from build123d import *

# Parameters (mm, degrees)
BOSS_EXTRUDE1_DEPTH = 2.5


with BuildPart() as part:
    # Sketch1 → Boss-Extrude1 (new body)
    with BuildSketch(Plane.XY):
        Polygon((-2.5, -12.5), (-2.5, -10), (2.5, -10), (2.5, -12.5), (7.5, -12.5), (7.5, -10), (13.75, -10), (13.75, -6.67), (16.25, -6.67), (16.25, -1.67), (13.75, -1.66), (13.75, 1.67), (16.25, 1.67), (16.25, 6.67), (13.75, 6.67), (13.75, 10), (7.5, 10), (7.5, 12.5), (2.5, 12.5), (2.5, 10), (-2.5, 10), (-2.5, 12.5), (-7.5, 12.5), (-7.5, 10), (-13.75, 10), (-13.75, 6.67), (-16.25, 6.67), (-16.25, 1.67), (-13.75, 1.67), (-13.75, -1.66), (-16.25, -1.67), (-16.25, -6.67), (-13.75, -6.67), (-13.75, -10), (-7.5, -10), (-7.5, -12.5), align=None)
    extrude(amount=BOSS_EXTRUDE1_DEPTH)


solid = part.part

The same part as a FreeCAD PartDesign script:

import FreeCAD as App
import Part
import Sketcher
from FreeCAD import Vector
Q = App.Units.Quantity

doc = App.newDocument("Part")
body = doc.addObject("PartDesign::Body", "Body")

# Sketch on XY plane
sketch1 = doc.addObject("Sketcher::SketchObject", "Sketch")
body.addObject(sketch1)
sketch1.AttachmentSupport = (doc.XY_Plane, [""])
sketch1.MapMode = "FlatFace"
sketch1.addGeometry([
    Part.LineSegment(Vector(-2.5, -12.5, 0), Vector(-2.5, -10, 0)),  # 0
    Part.LineSegment(Vector(-2.5, -10, 0), Vector(2.5, -10, 0)),  # 1
    Part.LineSegment(Vector(2.5, -10, 0), Vector(2.5, -12.5, 0)),  # 2
    Part.LineSegment(Vector(2.5, -12.5, 0), Vector(7.5, -12.5, 0)),  # 3
    Part.LineSegment(Vector(7.5, -12.5, 0), Vector(7.5, -10, 0)),  # 4
    Part.LineSegment(Vector(7.5, -10, 0), Vector(13.8, -10, 0)),  # 5
    Part.LineSegment(Vector(13.8, -10, 0), Vector(13.8, -6.7, 0)),  # 6
    Part.LineSegment(Vector(13.8, -6.7, 0), Vector(16.2, -6.7, 0)),  # 7
    Part.LineSegment(Vector(16.2, -6.7, 0), Vector(16.2, -1.7, 0)),  # 8
    Part.LineSegment(Vector(16.2, -1.7, 0), Vector(13.8, -1.7, 0)),  # 9
    Part.LineSegment(Vector(13.8, -1.7, 0), Vector(13.8, 1.7, 0)),  # 10
    Part.LineSegment(Vector(13.8, 1.7, 0), Vector(16.2, 1.7, 0)),  # 11
    Part.LineSegment(Vector(16.2, 1.7, 0), Vector(16.2, 6.7, 0)),  # 12
    Part.LineSegment(Vector(16.2, 6.7, 0), Vector(13.8, 6.7, 0)),  # 13
    Part.LineSegment(Vector(13.8, 6.7, 0), Vector(13.8, 10, 0)),  # 14
    Part.LineSegment(Vector(13.8, 10, 0), Vector(7.5, 10, 0)),  # 15
    Part.LineSegment(Vector(7.5, 10, 0), Vector(7.5, 12.5, 0)),  # 16
    Part.LineSegment(Vector(7.5, 12.5, 0), Vector(2.5, 12.5, 0)),  # 17
    Part.LineSegment(Vector(2.5, 12.5, 0), Vector(2.5, 10, 0)),  # 18
    Part.LineSegment(Vector(2.5, 10, 0), Vector(-2.5, 10, 0)),  # 19
    Part.LineSegment(Vector(-2.5, 10, 0), Vector(-2.5, 12.5, 0)),  # 20
    Part.LineSegment(Vector(-2.5, 12.5, 0), Vector(-7.5, 12.5, 0)),  # 21
    Part.LineSegment(Vector(-7.5, 12.5, 0), Vector(-7.5, 10, 0)),  # 22
    Part.LineSegment(Vector(-7.5, 10, 0), Vector(-13.8, 10, 0)),  # 23
    Part.LineSegment(Vector(-13.8, 10, 0), Vector(-13.8, 6.7, 0)),  # 24
    Part.LineSegment(Vector(-13.8, 6.7, 0), Vector(-16.2, 6.7, 0)),  # 25
    Part.LineSegment(Vector(-16.2, 6.7, 0), Vector(-16.2, 1.7, 0)),  # 26
    Part.LineSegment(Vector(-16.2, 1.7, 0), Vector(-13.8, 1.7, 0)),  # 27
    Part.LineSegment(Vector(-13.8, 1.7, 0), Vector(-13.8, -1.7, 0)),  # 28
    Part.LineSegment(Vector(-13.8, -1.7, 0), Vector(-16.2, -1.7, 0)),  # 29
    Part.LineSegment(Vector(-16.2, -1.7, 0), Vector(-16.2, -6.7, 0)),  # 30
    Part.LineSegment(Vector(-16.2, -6.7, 0), Vector(-13.8, -6.7, 0)),  # 31
    Part.LineSegment(Vector(-13.8, -6.7, 0), Vector(-13.8, -10, 0)),  # 32
    Part.LineSegment(Vector(-13.8, -10, 0), Vector(-7.5, -10, 0)),  # 33
    Part.LineSegment(Vector(-7.5, -10, 0), Vector(-7.5, -12.5, 0)),  # 34
    Part.LineSegment(Vector(-7.5, -12.5, 0), Vector(-2.5, -12.5, 0)),  # 35
], False)
sketch1.addConstraint([
    Sketcher.Constraint("Coincident", 0, 2, 1, 1),
    Sketcher.Constraint("Coincident", 1, 2, 2, 1),
    Sketcher.Constraint("Coincident", 2, 2, 3, 1),
    Sketcher.Constraint("Coincident", 3, 2, 4, 1),
    Sketcher.Constraint("Coincident", 4, 2, 5, 1),
    Sketcher.Constraint("Coincident", 5, 2, 6, 1),
    Sketcher.Constraint("Coincident", 6, 2, 7, 1),
    Sketcher.Constraint("Coincident", 7, 2, 8, 1),
    Sketcher.Constraint("Coincident", 8, 2, 9, 1),
    Sketcher.Constraint("Coincident", 9, 2, 10, 1),
    Sketcher.Constraint("Coincident", 10, 2, 11, 1),
    Sketcher.Constraint("Coincident", 11, 2, 12, 1),
    Sketcher.Constraint("Coincident", 12, 2, 13, 1),
    Sketcher.Constraint("Coincident", 13, 2, 14, 1),
    Sketcher.Constraint("Coincident", 14, 2, 15, 1),
    Sketcher.Constraint("Coincident", 15, 2, 16, 1),
    Sketcher.Constraint("Coincident", 16, 2, 17, 1),
    Sketcher.Constraint("Coincident", 17, 2, 18, 1),
    Sketcher.Constraint("Coincident", 18, 2, 19, 1),
    Sketcher.Constraint("Coincident", 19, 2, 20, 1),
    Sketcher.Constraint("Coincident", 20, 2, 21, 1),
    Sketcher.Constraint("Coincident", 21, 2, 22, 1),
    Sketcher.Constraint("Coincident", 22, 2, 23, 1),
    Sketcher.Constraint("Coincident", 23, 2, 24, 1),
    Sketcher.Constraint("Coincident", 24, 2, 25, 1),
    Sketcher.Constraint("Coincident", 25, 2, 26, 1),
    Sketcher.Constraint("Coincident", 26, 2, 27, 1),
    Sketcher.Constraint("Coincident", 27, 2, 28, 1),
    Sketcher.Constraint("Coincident", 28, 2, 29, 1),
    Sketcher.Constraint("Coincident", 29, 2, 30, 1),
    Sketcher.Constraint("Coincident", 30, 2, 31, 1),
    Sketcher.Constraint("Coincident", 31, 2, 32, 1),
    Sketcher.Constraint("Coincident", 32, 2, 33, 1),
    Sketcher.Constraint("Coincident", 33, 2, 34, 1),
    Sketcher.Constraint("Coincident", 34, 2, 35, 1),
    Sketcher.Constraint("Coincident", 35, 2, 0, 1),
    Sketcher.Constraint("Vertical", 0),
    Sketcher.Constraint("Horizontal", 1),
    Sketcher.Constraint("Vertical", 2),
    Sketcher.Constraint("Horizontal", 3),
    Sketcher.Constraint("Vertical", 4),
    Sketcher.Constraint("Horizontal", 5),
    Sketcher.Constraint("Vertical", 6),
    Sketcher.Constraint("Horizontal", 7),
    Sketcher.Constraint("Vertical", 8),
    Sketcher.Constraint("Vertical", 10),
    Sketcher.Constraint("Horizontal", 11),
    Sketcher.Constraint("Vertical", 12),
    Sketcher.Constraint("Horizontal", 13),
    Sketcher.Constraint("Vertical", 14),
    Sketcher.Constraint("Horizontal", 15),
    Sketcher.Constraint("Vertical", 16),
    Sketcher.Constraint("Horizontal", 17),
    Sketcher.Constraint("Vertical", 18),
    Sketcher.Constraint("Horizontal", 19),
    Sketcher.Constraint("Vertical", 20),
    Sketcher.Constraint("Horizontal", 21),
    Sketcher.Constraint("Vertical", 22),
    Sketcher.Constraint("Horizontal", 23),
    Sketcher.Constraint("Vertical", 24),
    Sketcher.Constraint("Horizontal", 25),
    Sketcher.Constraint("Vertical", 26),
    Sketcher.Constraint("Horizontal", 27),
    Sketcher.Constraint("Vertical", 28),
    Sketcher.Constraint("Vertical", 30),
    Sketcher.Constraint("Horizontal", 31),
    Sketcher.Constraint("Vertical", 32),
    Sketcher.Constraint("Horizontal", 33),
    Sketcher.Constraint("Vertical", 34),
    Sketcher.Constraint("Horizontal", 35),
    Sketcher.Constraint("Symmetric", 0, 2, 18, 2, -1, 1),
    Sketcher.Constraint("Symmetric", 2, 2, 20, 2, -1, 1),
    Sketcher.Constraint("Symmetric", 4, 2, 22, 2, -1, 1),
    Sketcher.Constraint("Symmetric", 6, 2, 24, 2, -1, 1),
    Sketcher.Constraint("Symmetric", 8, 2, 26, 2, -1, 1),
    Sketcher.Constraint("Symmetric", 11, 2, 29, 2, -1, 1),
    Sketcher.Constraint("Symmetric", 13, 2, 31, 2, -1, 1),
    Sketcher.Constraint("Symmetric", 15, 2, 33, 2, -1, 1),
    Sketcher.Constraint("Symmetric", 17, 2, 20, 2, -2),
    Sketcher.Constraint("Symmetric", 15, 2, 22, 2, -2),
    Sketcher.Constraint("Symmetric", 13, 2, 24, 2, -2),
    Sketcher.Constraint("Symmetric", 11, 2, 26, 2, -2),
    Sketcher.Constraint("Symmetric", 9, 2, 28, 2, -2),
    Sketcher.Constraint("Horizontal", 1, 2, 4, 2),
    Sketcher.Constraint("Horizontal", 3, 2, 34, 2),
    Sketcher.Constraint("Vertical", 6, 2, 9, 2),
    Sketcher.Constraint("Equal", 1, 3),
    Sketcher.Constraint("Equal", 31, 0),
    Sketcher.Constraint("Equal", 35, 8),
    Sketcher.Constraint("Equal", 6, 10),
    Sketcher.Constraint("DistanceX", 1, 1, 1, 2, Q("5 mm")),
    Sketcher.Constraint("DistanceX", 7, 1, 7, 2, Q("2.5 mm")),
    Sketcher.Constraint("DistanceY", 0, 2, -1, 1, Q("10 mm")),
    Sketcher.Constraint("DistanceX", 5, 1, 5, 2, Q("6.25 mm")),
    Sketcher.Constraint("DistanceY", 6, 1, 6, 2, Q("3.33 mm")),
])
pad1 = doc.addObject("PartDesign::Pad", "Pad")
body.addObject(pad1)
pad1.Profile = sketch1
pad1.Length = 2.5

doc.recompute()
